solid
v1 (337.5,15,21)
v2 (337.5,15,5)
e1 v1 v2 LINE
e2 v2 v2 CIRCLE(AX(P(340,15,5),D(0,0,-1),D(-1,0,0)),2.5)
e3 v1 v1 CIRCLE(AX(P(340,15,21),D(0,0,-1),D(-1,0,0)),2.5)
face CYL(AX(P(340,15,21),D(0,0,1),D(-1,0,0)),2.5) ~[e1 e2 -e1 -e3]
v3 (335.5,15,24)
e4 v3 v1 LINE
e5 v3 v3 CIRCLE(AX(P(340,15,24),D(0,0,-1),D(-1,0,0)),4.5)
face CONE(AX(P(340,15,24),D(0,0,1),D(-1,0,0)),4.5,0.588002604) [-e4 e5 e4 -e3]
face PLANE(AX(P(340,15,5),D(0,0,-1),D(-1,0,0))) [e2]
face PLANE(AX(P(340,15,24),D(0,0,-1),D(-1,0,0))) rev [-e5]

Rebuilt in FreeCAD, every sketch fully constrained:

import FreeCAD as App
import Part
import Sketcher
from FreeCAD import Vector
Q = App.Units.Quantity

doc = App.newDocument("Part")
body = doc.addObject("PartDesign::Body", "Body")

# Sketch on XZ plane
sketch1 = body.newObject("Sketcher::SketchObject", "Sketch")
sketch1.AttachmentSupport = (doc.getObject("XZ_Plane"), [""])
sketch1.MapMode = "FlatFace"
sketch1.addGeometry(Part.LineSegment(Vector(0, -3, 0), Vector(4.5, -3, 0)), False)
sketch1.addGeometry(Part.LineSegment(Vector(4.5, -3, 0), Vector(2.5, 0, 0)), False)
sketch1.addGeometry(Part.LineSegment(Vector(2.5, 0, 0), Vector(0, 0, 0)), False)
sketch1.addGeometry(Part.LineSegment(Vector(0, 0, 0), Vector(0, -3, 0)), False)
sketch1.addConstraint(Sketcher.Constraint("Coincident", 0, 2, 1, 1))
sketch1.addConstraint(Sketcher.Constraint("Coincident", 1, 2, 2, 1))
sketch1.addConstraint(Sketcher.Constraint("Coincident", 2, 2, 3, 1))
sketch1.addConstraint(Sketcher.Constraint("Coincident", 3, 2, 0, 1))
sketch1.addConstraint(Sketcher.Constraint("Horizontal", 0))
sketch1.addConstraint(Sketcher.Constraint("Horizontal", 2))
sketch1.addConstraint(Sketcher.Constraint("Vertical", 3))
sketch1.addConstraint(Sketcher.Constraint("Coincident", 2, 2, -1, 1))
sketch1.addConstraint(Sketcher.Constraint("DistanceY", 3, 2, 3, 1, Q("3 mm")))
sketch1.addConstraint(Sketcher.Constraint("DistanceX", 0, 1, 0, 2, Q("4.5 mm")))
sketch1.addConstraint(Sketcher.Constraint("DistanceX", 2, 2, 2, 1, Q("2.5 mm")))
revolution = body.newObject("PartDesign::Revolution", "Revolution")
revolution.Profile = sketch1
revolution.ReferenceAxis = (sketch1, ["V_Axis"])
revolution.Angle = 360
body2 = doc.addObject("PartDesign::Body", "Body001")

# Sketch on XY plane
sketch2 = body2.newObject("Sketcher::SketchObject", "Sketch001")
sketch2.AttachmentSupport = (doc.getObject("XY_Plane001"), [""])
sketch2.MapMode = "FlatFace"
sketch2.addGeometry(Part.Circle(Vector(0, 0, 0), Vector(0, 0, 1), 2.5), False)
sketch2.addConstraint(Sketcher.Constraint("Coincident", 0, 3, -1, 1))
sketch2.addConstraint(Sketcher.Constraint("Diameter", 0, Q("5 mm")))
pad1 = body2.newObject("PartDesign::Pad", "Pad")
pad1.Profile = sketch2
pad1.Length = 16
doc.recompute()

boolean = body2.newObject("PartDesign::Boolean", "Boolean")
boolean.Type = "Fuse"
boolean.addObjects([body])
body3 = doc.addObject("PartDesign::Body", "Body002")
doc.recompute()

body2.Placement = App.Placement(Vector(45, 15, 21), App.Rotation(Vector(0, 1, 0), 180))
boolean2 = body3.newObject("PartDesign::Boolean", "Boolean001")
boolean2.Type = "Fuse"
boolean2.addObjects([body2])
body4 = doc.addObject("PartDesign::Body", "Body003")
doc.recompute()

body3.Placement = App.Placement(Vector(25, 0, 0), App.Rotation(Vector(0, 0, 1), 0))
boolean3 = body4.newObject("PartDesign::Boolean", "Boolean002")
boolean3.Type = "Fuse"
boolean3.addObjects([body3])
body5 = doc.addObject("PartDesign::Body", "Body004")
doc.recompute()

body4.Placement = App.Placement(Vector(270, 0, 0), App.Rotation(Vector(0, 0, 1), 0))
boolean4 = body5.newObject("PartDesign::Boolean", "Boolean003")
boolean4.Type = "Fuse"
boolean4.addObjects([body4])

doc.recompute()
